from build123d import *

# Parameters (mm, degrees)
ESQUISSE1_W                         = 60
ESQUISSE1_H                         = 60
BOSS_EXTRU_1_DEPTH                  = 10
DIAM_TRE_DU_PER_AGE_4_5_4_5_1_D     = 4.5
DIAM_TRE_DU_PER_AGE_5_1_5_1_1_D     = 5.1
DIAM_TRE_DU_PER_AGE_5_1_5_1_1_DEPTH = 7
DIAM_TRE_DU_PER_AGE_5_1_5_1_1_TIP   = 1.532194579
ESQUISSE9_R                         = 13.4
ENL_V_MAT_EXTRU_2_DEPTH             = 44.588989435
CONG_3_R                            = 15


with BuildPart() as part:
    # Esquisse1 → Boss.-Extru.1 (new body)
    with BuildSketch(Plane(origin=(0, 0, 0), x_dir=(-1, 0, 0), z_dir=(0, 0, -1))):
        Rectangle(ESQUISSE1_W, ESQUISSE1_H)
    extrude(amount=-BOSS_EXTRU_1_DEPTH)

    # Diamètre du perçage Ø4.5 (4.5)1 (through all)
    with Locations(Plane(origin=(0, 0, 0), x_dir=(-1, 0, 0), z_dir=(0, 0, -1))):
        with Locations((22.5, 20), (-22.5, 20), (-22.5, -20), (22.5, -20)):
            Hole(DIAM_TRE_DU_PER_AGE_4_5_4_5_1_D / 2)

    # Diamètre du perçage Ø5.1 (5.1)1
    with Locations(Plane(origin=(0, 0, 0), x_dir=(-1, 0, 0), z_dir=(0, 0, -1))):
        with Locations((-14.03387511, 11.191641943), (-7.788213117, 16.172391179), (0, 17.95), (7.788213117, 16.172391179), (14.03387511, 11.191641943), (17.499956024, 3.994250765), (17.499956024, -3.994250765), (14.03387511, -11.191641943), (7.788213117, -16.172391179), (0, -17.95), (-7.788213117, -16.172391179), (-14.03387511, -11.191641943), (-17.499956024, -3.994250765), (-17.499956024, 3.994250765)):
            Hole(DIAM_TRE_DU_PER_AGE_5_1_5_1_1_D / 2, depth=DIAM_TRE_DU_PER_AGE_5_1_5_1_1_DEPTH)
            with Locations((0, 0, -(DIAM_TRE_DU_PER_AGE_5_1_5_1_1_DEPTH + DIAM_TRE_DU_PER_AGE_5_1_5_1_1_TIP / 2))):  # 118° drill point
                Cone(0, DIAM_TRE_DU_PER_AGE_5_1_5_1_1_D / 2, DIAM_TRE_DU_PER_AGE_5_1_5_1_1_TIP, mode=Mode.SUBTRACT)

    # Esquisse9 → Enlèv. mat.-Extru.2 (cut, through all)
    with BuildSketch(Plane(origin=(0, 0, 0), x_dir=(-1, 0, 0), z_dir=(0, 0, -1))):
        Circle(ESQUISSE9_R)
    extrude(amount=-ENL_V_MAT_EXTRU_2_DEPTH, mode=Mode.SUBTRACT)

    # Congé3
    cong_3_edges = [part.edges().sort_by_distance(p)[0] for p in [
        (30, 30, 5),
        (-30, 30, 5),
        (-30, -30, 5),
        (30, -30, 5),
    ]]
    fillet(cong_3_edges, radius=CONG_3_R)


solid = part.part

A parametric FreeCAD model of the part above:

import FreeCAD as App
import Part
import Sketcher
from FreeCAD import Vector
Q = App.Units.Quantity


def edges_at(feature, points):
    """Names of the edges that pass closest to the given points."""
    edges = feature.Shape.Edges
    near = lambda p: min(range(len(edges)), key=lambda i: edges[i].distToShape(Part.Vertex(*p))[0])
    return sorted({f"Edge{near(p) + 1}" for p in points})


def add_polygon(sketch, points):
    """Adds a closed chain of lines whose ends are joined by coincident constraints."""
    first, n = sketch.GeometryCount, len(points)
    for a, b in zip(points, points[1:] + points[:1]):
        sketch.addGeometry(Part.LineSegment(App.Vector(*a, 0), App.Vector(*b, 0)), False)
    for i in range(n):
        sketch.addConstraint(Sketcher.Constraint("Coincident", first + i, 2, first + (i + 1) % n, 1))

doc = App.newDocument("Part")
body = doc.addObject("PartDesign::Body", "Body")

# Sketch on XY plane
sketch1 = body.newObject("Sketcher::SketchObject", "Sketch")
sketch1.AttachmentSupport = (doc.getObject("XY_Plane"), [""])
sketch1.MapMode = "FlatFace"
add_polygon(sketch1, [(30, 30), (30, -30), (-30, -30), (-30, 30)])  # lines 0-3
sketch1.addConstraint([
    Sketcher.Constraint("Vertical", 0),
    Sketcher.Constraint("Horizontal", 1),
    Sketcher.Constraint("Vertical", 2),
    Sketcher.Constraint("Horizontal", 3),
    Sketcher.Constraint("Symmetric", 0, 2, 2, 2, -1, 1),
    Sketcher.Constraint("Equal", 3, 0),
    Sketcher.Constraint("DistanceX", 1, 2, 1, 1, Q("60 mm")),
])
pad1 = body.newObject("PartDesign::Pad", "Pad")
pad1.Profile = sketch1
pad1.Length = 10

# Sketch on XY plane
sketch2 = body.newObject("Sketcher::SketchObject", "Sketch001")
sketch2.AttachmentSupport = (doc.getObject("XY_Plane"), [""])
sketch2.MapMode = "FlatFace"
sketch2.addGeometry([
    Part.Circle(Vector(-22.5, 20, 0), Vector(0, 0, 1), 2.2),
    Part.Circle(Vector(22.5, 20, 0), Vector(0, 0, 1), 2.2),
    Part.Circle(Vector(22.5, -20, 0), Vector(0, 0, 1), 2.2),
    Part.Circle(Vector(-22.5, -20, 0), Vector(0, 0, 1), 2.2),
], False)
sketch2.addConstraint([
    Sketcher.Constraint("Equal", 0, 1),
    Sketcher.Constraint("Equal", 1, 2),
    Sketcher.Constraint("Equal", 2, 3),
    Sketcher.Constraint("Symmetric", 0, 3, 2, 3, -1, 1),
    Sketcher.Constraint("Symmetric", 1, 3, 3, 3, -1, 1),
    Sketcher.Constraint("Symmetric", 0, 3, 1, 3, -2),
    Sketcher.Constraint("Diameter", 0, Q("4.5 mm")),
    Sketcher.Constraint("DistanceY", -1, 1, 0, 3, Q("20 mm")),
    Sketcher.Constraint("DistanceX", 0, 3, 1, 3, Q("45 mm")),
])
doc.recompute()
hole = body.newObject("PartDesign::Hole", "Hole")
hole.Profile = sketch2
hole.ThreadType = "None"
hole.Diameter = 4.5
hole.DepthType = "ThroughAll"
hole.Reversed = True

# Sketch on XY plane
sketch3 = body.newObject("Sketcher::SketchObject", "Sketch002")
sketch3.AttachmentSupport = (doc.getObject("XY_Plane"), [""])
sketch3.MapMode = "FlatFace"
sketch3.addGeometry([
    Part.Circle(Vector(14, 11.2, 0), Vector(0, 0, 1), 2.5),  # 0
    Part.Circle(Vector(7.8, 16.2, 0), Vector(0, 0, 1), 2.5),  # 1
    Part.Circle(Vector(0, 17.9, 0), Vector(0, 0, 1), 2.5),  # 2
    Part.Circle(Vector(-7.8, 16.2, 0), Vector(0, 0, 1), 2.5),  # 3
    Part.Circle(Vector(-14, 11.2, 0), Vector(0, 0, 1), 2.5),  # 4
    Part.Circle(Vector(-17.5, 4, 0), Vector(0, 0, 1), 2.5),  # 5
    Part.Circle(Vector(-17.5, -4, 0), Vector(0, 0, 1), 2.5),  # 6
    Part.Circle(Vector(-14, -11.2, 0), Vector(0, 0, 1), 2.5),  # 7
    Part.Circle(Vector(-7.8, -16.2, 0), Vector(0, 0, 1), 2.5),  # 8
    Part.Circle(Vector(0, -17.9, 0), Vector(0, 0, 1), 2.5),  # 9
    Part.Circle(Vector(7.8, -16.2, 0), Vector(0, 0, 1), 2.5),  # 10
    Part.Circle(Vector(14, -11.2, 0), Vector(0, 0, 1), 2.5),  # 11
    Part.Circle(Vector(17.5, -4, 0), Vector(0, 0, 1), 2.5),  # 12
    Part.Circle(Vector(17.5, 4, 0), Vector(0, 0, 1), 2.5),  # 13
], False)
sketch3.addConstraint([
    Sketcher.Constraint("Equal", 0, 1),
    Sketcher.Constraint("Equal", 1, 2),
    Sketcher.Constraint("Equal", 2, 3),
    Sketcher.Constraint("Equal", 3, 4),
    Sketcher.Constraint("Equal", 4, 5),
    Sketcher.Constraint("Equal", 5, 6),
    Sketcher.Constraint("Equal", 6, 7),
    Sketcher.Constraint("Equal", 7, 8),
    Sketcher.Constraint("Equal", 8, 9),
    Sketcher.Constraint("Equal", 9, 10),
    Sketcher.Constraint("Equal", 10, 11),
    Sketcher.Constraint("Equal", 11, 12),
    Sketcher.Constraint("Equal", 12, 13),
    Sketcher.Constraint("Symmetric", 0, 3, 7, 3, -1, 1),
    Sketcher.Constraint("Symmetric", 1, 3, 8, 3, -1, 1),
    Sketcher.Constraint("Symmetric", 2, 3, 9, 3, -1, 1),
    Sketcher.Constraint("Symmetric", 3, 3, 10, 3, -1, 1),
    Sketcher.Constraint("Symmetric", 4, 3, 11, 3, -1, 1),
    Sketcher.Constraint("Symmetric", 5, 3, 12, 3, -1, 1),
    Sketcher.Constraint("Symmetric", 6, 3, 13, 3, -1, 1),
    Sketcher.Constraint("Symmetric", 1, 3, 3, 3, -2),
    Sketcher.Constraint("Symmetric", 0, 3, 4, 3, -2),
    Sketcher.Constraint("Symmetric", 6, 3, 12, 3, -2),
    Sketcher.Constraint("PointOnObject", 2, 3, -2),
    Sketcher.Constraint("Diameter", 0, Q("5.1 mm")),
    Sketcher.Constraint("DistanceY", -1, 1, 2, 3, Q("17.95 mm")),
    Sketcher.Constraint("DistanceY", 6, 3, 5, 3, Q("7.988502 mm")),
    Sketcher.Constraint("DistanceY", -1, 1, 0, 3, Q("11.191642 mm")),
    Sketcher.Constraint("DistanceY", -1, 1, 1, 3, Q("16.172391 mm")),
    Sketcher.Constraint("DistanceX", 1, 3, 0, 3, Q("6.245662 mm")),
    Sketcher.Constraint("DistanceX", 3, 3, 0, 3, Q("21.822088 mm")),
    Sketcher.Constraint("DistanceX", 5, 3, 4, 3, Q("3.466081 mm")),
])
doc.recompute()
hole2 = body.newObject("PartDesign::Hole", "Hole001")
hole2.Profile = sketch3
hole2.ThreadType = "None"
hole2.Diameter = 5.1
hole2.DepthType = "Dimension"
hole2.Depth = 7
hole2.DrillPoint = "Angled"
hole2.DrillPointAngle = 118
hole2.Reversed = True

# Sketch on XY plane
sketch4 = body.newObject("Sketcher::SketchObject", "Sketch003")
sketch4.AttachmentSupport = (doc.getObject("XY_Plane"), [""])
sketch4.MapMode = "FlatFace"
sketch4.addGeometry(Part.Circle(Vector(0, 0, 0), Vector(0, 0, 1), 13), False)
sketch4.addConstraint([
    Sketcher.Constraint("Coincident", 0, 3, -1, 1),
    Sketcher.Constraint("Diameter", 0, Q("26.8 mm")),
])
pocket1 = body.newObject("PartDesign::Pocket", "Pocket")
pocket1.Profile = sketch4
pocket1.Type = "ThroughAll"
pocket1.Reversed = True
doc.recompute()

fillet = body.newObject("PartDesign::Fillet", "Fillet")
fillet.Base = (pocket1, edges_at(pocket1, [
    (30, 30, 5),
    (-30, 30, 5),
    (-30, -30, 5),
    (30, -30, 5),
]))
fillet.Radius = 15

doc.recompute()
